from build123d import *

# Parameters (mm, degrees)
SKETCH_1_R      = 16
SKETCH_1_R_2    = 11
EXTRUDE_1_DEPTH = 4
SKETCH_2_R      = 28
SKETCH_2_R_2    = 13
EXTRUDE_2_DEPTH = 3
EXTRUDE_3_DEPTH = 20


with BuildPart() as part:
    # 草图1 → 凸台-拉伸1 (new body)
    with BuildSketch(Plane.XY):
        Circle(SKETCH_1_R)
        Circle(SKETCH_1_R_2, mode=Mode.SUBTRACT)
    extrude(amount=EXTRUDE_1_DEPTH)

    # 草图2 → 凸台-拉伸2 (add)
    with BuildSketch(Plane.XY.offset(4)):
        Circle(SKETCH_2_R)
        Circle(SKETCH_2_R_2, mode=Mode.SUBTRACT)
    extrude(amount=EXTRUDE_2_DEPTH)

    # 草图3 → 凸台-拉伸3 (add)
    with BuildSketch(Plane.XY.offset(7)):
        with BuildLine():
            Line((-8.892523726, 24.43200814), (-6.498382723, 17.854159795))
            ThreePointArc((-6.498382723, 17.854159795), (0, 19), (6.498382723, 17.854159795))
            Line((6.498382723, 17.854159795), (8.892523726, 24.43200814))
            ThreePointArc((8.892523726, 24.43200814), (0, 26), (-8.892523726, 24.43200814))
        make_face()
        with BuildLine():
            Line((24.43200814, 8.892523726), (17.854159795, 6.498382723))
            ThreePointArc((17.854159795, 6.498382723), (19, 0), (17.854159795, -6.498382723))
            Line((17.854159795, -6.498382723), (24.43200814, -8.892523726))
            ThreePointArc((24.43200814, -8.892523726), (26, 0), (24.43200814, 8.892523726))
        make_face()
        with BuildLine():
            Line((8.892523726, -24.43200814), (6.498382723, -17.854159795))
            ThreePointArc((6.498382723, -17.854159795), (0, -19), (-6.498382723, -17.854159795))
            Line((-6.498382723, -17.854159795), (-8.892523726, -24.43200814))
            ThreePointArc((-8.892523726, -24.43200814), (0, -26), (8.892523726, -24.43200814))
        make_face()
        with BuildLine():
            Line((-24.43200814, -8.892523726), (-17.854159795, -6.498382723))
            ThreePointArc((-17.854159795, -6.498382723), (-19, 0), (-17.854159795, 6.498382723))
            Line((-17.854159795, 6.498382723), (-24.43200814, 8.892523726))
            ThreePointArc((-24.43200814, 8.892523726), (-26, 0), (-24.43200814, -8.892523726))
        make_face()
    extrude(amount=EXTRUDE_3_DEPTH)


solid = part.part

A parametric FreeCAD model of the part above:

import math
import FreeCAD as App
import Part
import Sketcher
Q = App.Units.Quantity

doc = App.newDocument("Part")
body = doc.addObject("PartDesign::Body", "Body")

sketch1 = doc.addObject("Sketcher::SketchObject", "Sketch")
body.addObject(sketch1)
sketch1.AttachmentSupport = (doc.XY_Plane, [""])
sketch1.MapMode = "FlatFace"
sketch1.addGeometry(Part.Circle(App.Vector(0, 0, 0), App.Vector(0, 0, 1), 16), False)
sketch1.addGeometry(Part.Circle(App.Vector(0, 0, 0), App.Vector(0, 0, 1), 11), False)
sketch1.addConstraint(Sketcher.Constraint("Coincident", 0, 3, -1, 1))
sketch1.addConstraint(Sketcher.Constraint("Coincident", 1, 3, -1, 1))
sketch1.addConstraint(Sketcher.Constraint("Diameter", 0, Q("32 mm")))
sketch1.addConstraint(Sketcher.Constraint("Diameter", 1, Q("22 mm")))
pad1 = doc.addObject("PartDesign::Pad", "Pad")
body.addObject(pad1)
pad1.Profile = sketch1
pad1.Length = 4

sketch2 = doc.addObject("Sketcher::SketchObject", "Sketch001")
body.addObject(sketch2)
sketch2.AttachmentSupport = (doc.XY_Plane, [""])
sketch2.MapMode = "FlatFace"
sketch2.AttachmentOffset = App.Placement(App.Vector(0, 0, 4), App.Rotation())
sketch2.addGeometry(Part.Circle(App.Vector(0, 0, 0), App.Vector(0, 0, 1), 28), False)
sketch2.addGeometry(Part.Circle(App.Vector(0, 0, 0), App.Vector(0, 0, 1), 13), False)
sketch2.addConstraint(Sketcher.Constraint("Coincident", 0, 3, -1, 1))
sketch2.addConstraint(Sketcher.Constraint("Coincident", 1, 3, -1, 1))
sketch2.addConstraint(Sketcher.Constraint("Diameter", 0, Q("56 mm")))
sketch2.addConstraint(Sketcher.Constraint("Diameter", 1, Q("26 mm")))
pad2 = doc.addObject("PartDesign::Pad", "Pad001")
body.addObject(pad2)
pad2.Profile = sketch2
pad2.Length = 3

sketch3 = doc.addObject("Sketcher::SketchObject", "Sketch002")
body.addObject(sketch3)
sketch3.AttachmentSupport = (doc.XY_Plane, [""])
sketch3.MapMode = "FlatFace"
sketch3.AttachmentOffset = App.Placement(App.Vector(0, 0, 7), App.Rotation())
sketch3.addGeometry(Part.LineSegment(App.Vector(-9, 24, 0), App.Vector(-6, 18, 0)), False)
sketch3.addGeometry(Part.ArcOfCircle(Part.Circle(App.Vector(0, 0, 0), App.Vector(0, 0, 1), 19), math.radians(70), math.radians(110)), False)
sketch3.addGeometry(Part.LineSegment(App.Vector(6, 18, 0), App.Vector(9, 24, 0)), False)
sketch3.addGeometry(Part.ArcOfCircle(Part.Circle(App.Vector(0, 0, 0), App.Vector(0, 0, 1), 26), math.radians(70), math.radians(110)), False)
sketch3.addGeometry(Part.LineSegment(App.Vector(24, 9, 0), App.Vector(18, 6, 0)), False)
sketch3.addGeometry(Part.ArcOfCircle(Part.Circle(App.Vector(0, 0, 0), App.Vector(0, 0, 1), 19), math.radians(-20), math.radians(20)), False)
sketch3.addGeometry(Part.LineSegment(App.Vector(18, -6, 0), App.Vector(24, -9, 0)), False)
sketch3.addGeometry(Part.ArcOfCircle(Part.Circle(App.Vector(0, 0, 0), App.Vector(0, 0, 1), 26), math.radians(-20), math.radians(20)), False)
sketch3.addGeometry(Part.LineSegment(App.Vector(9, -24, 0), App.Vector(6, -18, 0)), False)
sketch3.addGeometry(Part.ArcOfCircle(Part.Circle(App.Vector(0, 0, 0), App.Vector(0, 0, 1), 19), math.radians(-110), math.radians(-70)), False)
sketch3.addGeometry(Part.LineSegment(App.Vector(-6, -18, 0), App.Vector(-9, -24, 0)), False)
sketch3.addGeometry(Part.ArcOfCircle(Part.Circle(App.Vector(0, 0, 0), App.Vector(0, 0, 1), 26), math.radians(-110), math.radians(-70)), False)
sketch3.addGeometry(Part.LineSegment(App.Vector(-24, -9, 0), App.Vector(-18, -6, 0)), False)
sketch3.addGeometry(Part.ArcOfCircle(Part.Circle(App.Vector(0, 0, 0), App.Vector(0, 0, 1), 19), math.radians(160), math.radians(200)), False)
sketch3.addGeometry(Part.LineSegment(App.Vector(-18, 6, 0), App.Vector(-24, 9, 0)), False)
sketch3.addGeometry(Part.ArcOfCircle(Part.Circle(App.Vector(0, 0, 0), App.Vector(0, 0, 1), 26), math.radians(160), math.radians(200)), False)
sketch3.addConstraint(Sketcher.Constraint("Coincident", 0, 2, 1, 2))
sketch3.addConstraint(Sketcher.Constraint("Coincident", 1, 1, 2, 1))
sketch3.addConstraint(Sketcher.Constraint("Coincident", 2, 2, 3, 1))
sketch3.addConstraint(Sketcher.Constraint("Coincident", 3, 2, 0, 1))
sketch3.addConstraint(Sketcher.Constraint("Coincident", 4, 2, 5, 2))
sketch3.addConstraint(Sketcher.Constraint("Coincident", 5, 1, 6, 1))
sketch3.addConstraint(Sketcher.Constraint("Coincident", 6, 2, 7, 1))
sketch3.addConstraint(Sketcher.Constraint("Coincident", 7, 2, 4, 1))
sketch3.addConstraint(Sketcher.Constraint("Coincident", 8, 2, 9, 2))
sketch3.addConstraint(Sketcher.Constraint("Coincident", 9, 1, 10, 1))
sketch3.addConstraint(Sketcher.Constraint("Coincident", 10, 2, 11, 1))
sketch3.addConstraint(Sketcher.Constraint("Coincident", 11, 2, 8, 1))
sketch3.addConstraint(Sketcher.Constraint("Coincident", 12, 2, 13, 2))
sketch3.addConstraint(Sketcher.Constraint("Coincident", 13, 1, 14, 1))
sketch3.addConstraint(Sketcher.Constraint("Coincident", 14, 2, 15, 1))
sketch3.addConstraint(Sketcher.Constraint("Coincident", 15, 2, 12, 1))
sketch3.addConstraint(Sketcher.Constraint("Coincident", 1, 3, -1, 1))
sketch3.addConstraint(Sketcher.Constraint("Coincident", 3, 3, -1, 1))
sketch3.addConstraint(Sketcher.Constraint("Coincident", 5, 3, -1, 1))
sketch3.addConstraint(Sketcher.Constraint("Coincident", 7, 3, -1, 1))
sketch3.addConstraint(Sketcher.Constraint("Coincident", 9, 3, -1, 1))
sketch3.addConstraint(Sketcher.Constraint("Coincident", 11, 3, -1, 1))
sketch3.addConstraint(Sketcher.Constraint("Coincident", 13, 3, -1, 1))
sketch3.addConstraint(Sketcher.Constraint("Coincident", 15, 3, -1, 1))
sketch3.addConstraint(Sketcher.Constraint("Equal", 1, 5))
sketch3.addConstraint(Sketcher.Constraint("Equal", 3, 7))
sketch3.addConstraint(Sketcher.Constraint("Equal", 5, 9))
sketch3.addConstraint(Sketcher.Constraint("Equal", 7, 11))
sketch3.addConstraint(Sketcher.Constraint("Equal", 9, 13))
sketch3.addConstraint(Sketcher.Constraint("Equal", 11, 15))
sketch3.addConstraint(Sketcher.Constraint("Perpendicular", 0, 4))
sketch3.addConstraint(Sketcher.Constraint("Perpendicular", 2, 6))
sketch3.addConstraint(Sketcher.Constraint("Perpendicular", 4, 8))
sketch3.addConstraint(Sketcher.Constraint("Perpendicular", 6, 10))
sketch3.addConstraint(Sketcher.Constraint("Perpendicular", 8, 12))
sketch3.addConstraint(Sketcher.Constraint("Perpendicular", 10, 14))
sketch3.addConstraint(Sketcher.Constraint("Horizontal", 0, 2, 1, 1))
sketch3.addConstraint(Sketcher.Constraint("Horizontal", 2, 2, 3, 2))
sketch3.addConstraint(Sketcher.Constraint("Horizontal", 8, 2, 9, 1))
sketch3.addConstraint(Sketcher.Constraint("Horizontal", 5, 1, 12, 2))
sketch3.addConstraint(Sketcher.Constraint("Horizontal", 4, 2, 13, 1))
sketch3.addConstraint(Sketcher.Constraint("Vertical", 4, 2, 5, 1))
sketch3.addConstraint(Sketcher.Constraint("Vertical", 1, 1, 8, 2))
sketch3.addConstraint(Sketcher.Constraint("Radius", 1, Q("19 mm")))
sketch3.addConstraint(Sketcher.Constraint("Radius", 3, Q("26 mm")))
sketch3.addConstraint(Sketcher.Constraint("Angle", 0, Q("-70 deg")))
sketch3.addConstraint(Sketcher.Constraint("DistanceY", -1, 1, 0, 2, Q("17.85416 mm")))
sketch3.addConstraint(Sketcher.Constraint("DistanceX", -1, 1, 4, 2, Q("17.85416 mm")))
pad3 = doc.addObject("PartDesign::Pad", "Pad002")
body.addObject(pad3)
pad3.Profile = sketch3
pad3.Length = 20

doc.recompute()
